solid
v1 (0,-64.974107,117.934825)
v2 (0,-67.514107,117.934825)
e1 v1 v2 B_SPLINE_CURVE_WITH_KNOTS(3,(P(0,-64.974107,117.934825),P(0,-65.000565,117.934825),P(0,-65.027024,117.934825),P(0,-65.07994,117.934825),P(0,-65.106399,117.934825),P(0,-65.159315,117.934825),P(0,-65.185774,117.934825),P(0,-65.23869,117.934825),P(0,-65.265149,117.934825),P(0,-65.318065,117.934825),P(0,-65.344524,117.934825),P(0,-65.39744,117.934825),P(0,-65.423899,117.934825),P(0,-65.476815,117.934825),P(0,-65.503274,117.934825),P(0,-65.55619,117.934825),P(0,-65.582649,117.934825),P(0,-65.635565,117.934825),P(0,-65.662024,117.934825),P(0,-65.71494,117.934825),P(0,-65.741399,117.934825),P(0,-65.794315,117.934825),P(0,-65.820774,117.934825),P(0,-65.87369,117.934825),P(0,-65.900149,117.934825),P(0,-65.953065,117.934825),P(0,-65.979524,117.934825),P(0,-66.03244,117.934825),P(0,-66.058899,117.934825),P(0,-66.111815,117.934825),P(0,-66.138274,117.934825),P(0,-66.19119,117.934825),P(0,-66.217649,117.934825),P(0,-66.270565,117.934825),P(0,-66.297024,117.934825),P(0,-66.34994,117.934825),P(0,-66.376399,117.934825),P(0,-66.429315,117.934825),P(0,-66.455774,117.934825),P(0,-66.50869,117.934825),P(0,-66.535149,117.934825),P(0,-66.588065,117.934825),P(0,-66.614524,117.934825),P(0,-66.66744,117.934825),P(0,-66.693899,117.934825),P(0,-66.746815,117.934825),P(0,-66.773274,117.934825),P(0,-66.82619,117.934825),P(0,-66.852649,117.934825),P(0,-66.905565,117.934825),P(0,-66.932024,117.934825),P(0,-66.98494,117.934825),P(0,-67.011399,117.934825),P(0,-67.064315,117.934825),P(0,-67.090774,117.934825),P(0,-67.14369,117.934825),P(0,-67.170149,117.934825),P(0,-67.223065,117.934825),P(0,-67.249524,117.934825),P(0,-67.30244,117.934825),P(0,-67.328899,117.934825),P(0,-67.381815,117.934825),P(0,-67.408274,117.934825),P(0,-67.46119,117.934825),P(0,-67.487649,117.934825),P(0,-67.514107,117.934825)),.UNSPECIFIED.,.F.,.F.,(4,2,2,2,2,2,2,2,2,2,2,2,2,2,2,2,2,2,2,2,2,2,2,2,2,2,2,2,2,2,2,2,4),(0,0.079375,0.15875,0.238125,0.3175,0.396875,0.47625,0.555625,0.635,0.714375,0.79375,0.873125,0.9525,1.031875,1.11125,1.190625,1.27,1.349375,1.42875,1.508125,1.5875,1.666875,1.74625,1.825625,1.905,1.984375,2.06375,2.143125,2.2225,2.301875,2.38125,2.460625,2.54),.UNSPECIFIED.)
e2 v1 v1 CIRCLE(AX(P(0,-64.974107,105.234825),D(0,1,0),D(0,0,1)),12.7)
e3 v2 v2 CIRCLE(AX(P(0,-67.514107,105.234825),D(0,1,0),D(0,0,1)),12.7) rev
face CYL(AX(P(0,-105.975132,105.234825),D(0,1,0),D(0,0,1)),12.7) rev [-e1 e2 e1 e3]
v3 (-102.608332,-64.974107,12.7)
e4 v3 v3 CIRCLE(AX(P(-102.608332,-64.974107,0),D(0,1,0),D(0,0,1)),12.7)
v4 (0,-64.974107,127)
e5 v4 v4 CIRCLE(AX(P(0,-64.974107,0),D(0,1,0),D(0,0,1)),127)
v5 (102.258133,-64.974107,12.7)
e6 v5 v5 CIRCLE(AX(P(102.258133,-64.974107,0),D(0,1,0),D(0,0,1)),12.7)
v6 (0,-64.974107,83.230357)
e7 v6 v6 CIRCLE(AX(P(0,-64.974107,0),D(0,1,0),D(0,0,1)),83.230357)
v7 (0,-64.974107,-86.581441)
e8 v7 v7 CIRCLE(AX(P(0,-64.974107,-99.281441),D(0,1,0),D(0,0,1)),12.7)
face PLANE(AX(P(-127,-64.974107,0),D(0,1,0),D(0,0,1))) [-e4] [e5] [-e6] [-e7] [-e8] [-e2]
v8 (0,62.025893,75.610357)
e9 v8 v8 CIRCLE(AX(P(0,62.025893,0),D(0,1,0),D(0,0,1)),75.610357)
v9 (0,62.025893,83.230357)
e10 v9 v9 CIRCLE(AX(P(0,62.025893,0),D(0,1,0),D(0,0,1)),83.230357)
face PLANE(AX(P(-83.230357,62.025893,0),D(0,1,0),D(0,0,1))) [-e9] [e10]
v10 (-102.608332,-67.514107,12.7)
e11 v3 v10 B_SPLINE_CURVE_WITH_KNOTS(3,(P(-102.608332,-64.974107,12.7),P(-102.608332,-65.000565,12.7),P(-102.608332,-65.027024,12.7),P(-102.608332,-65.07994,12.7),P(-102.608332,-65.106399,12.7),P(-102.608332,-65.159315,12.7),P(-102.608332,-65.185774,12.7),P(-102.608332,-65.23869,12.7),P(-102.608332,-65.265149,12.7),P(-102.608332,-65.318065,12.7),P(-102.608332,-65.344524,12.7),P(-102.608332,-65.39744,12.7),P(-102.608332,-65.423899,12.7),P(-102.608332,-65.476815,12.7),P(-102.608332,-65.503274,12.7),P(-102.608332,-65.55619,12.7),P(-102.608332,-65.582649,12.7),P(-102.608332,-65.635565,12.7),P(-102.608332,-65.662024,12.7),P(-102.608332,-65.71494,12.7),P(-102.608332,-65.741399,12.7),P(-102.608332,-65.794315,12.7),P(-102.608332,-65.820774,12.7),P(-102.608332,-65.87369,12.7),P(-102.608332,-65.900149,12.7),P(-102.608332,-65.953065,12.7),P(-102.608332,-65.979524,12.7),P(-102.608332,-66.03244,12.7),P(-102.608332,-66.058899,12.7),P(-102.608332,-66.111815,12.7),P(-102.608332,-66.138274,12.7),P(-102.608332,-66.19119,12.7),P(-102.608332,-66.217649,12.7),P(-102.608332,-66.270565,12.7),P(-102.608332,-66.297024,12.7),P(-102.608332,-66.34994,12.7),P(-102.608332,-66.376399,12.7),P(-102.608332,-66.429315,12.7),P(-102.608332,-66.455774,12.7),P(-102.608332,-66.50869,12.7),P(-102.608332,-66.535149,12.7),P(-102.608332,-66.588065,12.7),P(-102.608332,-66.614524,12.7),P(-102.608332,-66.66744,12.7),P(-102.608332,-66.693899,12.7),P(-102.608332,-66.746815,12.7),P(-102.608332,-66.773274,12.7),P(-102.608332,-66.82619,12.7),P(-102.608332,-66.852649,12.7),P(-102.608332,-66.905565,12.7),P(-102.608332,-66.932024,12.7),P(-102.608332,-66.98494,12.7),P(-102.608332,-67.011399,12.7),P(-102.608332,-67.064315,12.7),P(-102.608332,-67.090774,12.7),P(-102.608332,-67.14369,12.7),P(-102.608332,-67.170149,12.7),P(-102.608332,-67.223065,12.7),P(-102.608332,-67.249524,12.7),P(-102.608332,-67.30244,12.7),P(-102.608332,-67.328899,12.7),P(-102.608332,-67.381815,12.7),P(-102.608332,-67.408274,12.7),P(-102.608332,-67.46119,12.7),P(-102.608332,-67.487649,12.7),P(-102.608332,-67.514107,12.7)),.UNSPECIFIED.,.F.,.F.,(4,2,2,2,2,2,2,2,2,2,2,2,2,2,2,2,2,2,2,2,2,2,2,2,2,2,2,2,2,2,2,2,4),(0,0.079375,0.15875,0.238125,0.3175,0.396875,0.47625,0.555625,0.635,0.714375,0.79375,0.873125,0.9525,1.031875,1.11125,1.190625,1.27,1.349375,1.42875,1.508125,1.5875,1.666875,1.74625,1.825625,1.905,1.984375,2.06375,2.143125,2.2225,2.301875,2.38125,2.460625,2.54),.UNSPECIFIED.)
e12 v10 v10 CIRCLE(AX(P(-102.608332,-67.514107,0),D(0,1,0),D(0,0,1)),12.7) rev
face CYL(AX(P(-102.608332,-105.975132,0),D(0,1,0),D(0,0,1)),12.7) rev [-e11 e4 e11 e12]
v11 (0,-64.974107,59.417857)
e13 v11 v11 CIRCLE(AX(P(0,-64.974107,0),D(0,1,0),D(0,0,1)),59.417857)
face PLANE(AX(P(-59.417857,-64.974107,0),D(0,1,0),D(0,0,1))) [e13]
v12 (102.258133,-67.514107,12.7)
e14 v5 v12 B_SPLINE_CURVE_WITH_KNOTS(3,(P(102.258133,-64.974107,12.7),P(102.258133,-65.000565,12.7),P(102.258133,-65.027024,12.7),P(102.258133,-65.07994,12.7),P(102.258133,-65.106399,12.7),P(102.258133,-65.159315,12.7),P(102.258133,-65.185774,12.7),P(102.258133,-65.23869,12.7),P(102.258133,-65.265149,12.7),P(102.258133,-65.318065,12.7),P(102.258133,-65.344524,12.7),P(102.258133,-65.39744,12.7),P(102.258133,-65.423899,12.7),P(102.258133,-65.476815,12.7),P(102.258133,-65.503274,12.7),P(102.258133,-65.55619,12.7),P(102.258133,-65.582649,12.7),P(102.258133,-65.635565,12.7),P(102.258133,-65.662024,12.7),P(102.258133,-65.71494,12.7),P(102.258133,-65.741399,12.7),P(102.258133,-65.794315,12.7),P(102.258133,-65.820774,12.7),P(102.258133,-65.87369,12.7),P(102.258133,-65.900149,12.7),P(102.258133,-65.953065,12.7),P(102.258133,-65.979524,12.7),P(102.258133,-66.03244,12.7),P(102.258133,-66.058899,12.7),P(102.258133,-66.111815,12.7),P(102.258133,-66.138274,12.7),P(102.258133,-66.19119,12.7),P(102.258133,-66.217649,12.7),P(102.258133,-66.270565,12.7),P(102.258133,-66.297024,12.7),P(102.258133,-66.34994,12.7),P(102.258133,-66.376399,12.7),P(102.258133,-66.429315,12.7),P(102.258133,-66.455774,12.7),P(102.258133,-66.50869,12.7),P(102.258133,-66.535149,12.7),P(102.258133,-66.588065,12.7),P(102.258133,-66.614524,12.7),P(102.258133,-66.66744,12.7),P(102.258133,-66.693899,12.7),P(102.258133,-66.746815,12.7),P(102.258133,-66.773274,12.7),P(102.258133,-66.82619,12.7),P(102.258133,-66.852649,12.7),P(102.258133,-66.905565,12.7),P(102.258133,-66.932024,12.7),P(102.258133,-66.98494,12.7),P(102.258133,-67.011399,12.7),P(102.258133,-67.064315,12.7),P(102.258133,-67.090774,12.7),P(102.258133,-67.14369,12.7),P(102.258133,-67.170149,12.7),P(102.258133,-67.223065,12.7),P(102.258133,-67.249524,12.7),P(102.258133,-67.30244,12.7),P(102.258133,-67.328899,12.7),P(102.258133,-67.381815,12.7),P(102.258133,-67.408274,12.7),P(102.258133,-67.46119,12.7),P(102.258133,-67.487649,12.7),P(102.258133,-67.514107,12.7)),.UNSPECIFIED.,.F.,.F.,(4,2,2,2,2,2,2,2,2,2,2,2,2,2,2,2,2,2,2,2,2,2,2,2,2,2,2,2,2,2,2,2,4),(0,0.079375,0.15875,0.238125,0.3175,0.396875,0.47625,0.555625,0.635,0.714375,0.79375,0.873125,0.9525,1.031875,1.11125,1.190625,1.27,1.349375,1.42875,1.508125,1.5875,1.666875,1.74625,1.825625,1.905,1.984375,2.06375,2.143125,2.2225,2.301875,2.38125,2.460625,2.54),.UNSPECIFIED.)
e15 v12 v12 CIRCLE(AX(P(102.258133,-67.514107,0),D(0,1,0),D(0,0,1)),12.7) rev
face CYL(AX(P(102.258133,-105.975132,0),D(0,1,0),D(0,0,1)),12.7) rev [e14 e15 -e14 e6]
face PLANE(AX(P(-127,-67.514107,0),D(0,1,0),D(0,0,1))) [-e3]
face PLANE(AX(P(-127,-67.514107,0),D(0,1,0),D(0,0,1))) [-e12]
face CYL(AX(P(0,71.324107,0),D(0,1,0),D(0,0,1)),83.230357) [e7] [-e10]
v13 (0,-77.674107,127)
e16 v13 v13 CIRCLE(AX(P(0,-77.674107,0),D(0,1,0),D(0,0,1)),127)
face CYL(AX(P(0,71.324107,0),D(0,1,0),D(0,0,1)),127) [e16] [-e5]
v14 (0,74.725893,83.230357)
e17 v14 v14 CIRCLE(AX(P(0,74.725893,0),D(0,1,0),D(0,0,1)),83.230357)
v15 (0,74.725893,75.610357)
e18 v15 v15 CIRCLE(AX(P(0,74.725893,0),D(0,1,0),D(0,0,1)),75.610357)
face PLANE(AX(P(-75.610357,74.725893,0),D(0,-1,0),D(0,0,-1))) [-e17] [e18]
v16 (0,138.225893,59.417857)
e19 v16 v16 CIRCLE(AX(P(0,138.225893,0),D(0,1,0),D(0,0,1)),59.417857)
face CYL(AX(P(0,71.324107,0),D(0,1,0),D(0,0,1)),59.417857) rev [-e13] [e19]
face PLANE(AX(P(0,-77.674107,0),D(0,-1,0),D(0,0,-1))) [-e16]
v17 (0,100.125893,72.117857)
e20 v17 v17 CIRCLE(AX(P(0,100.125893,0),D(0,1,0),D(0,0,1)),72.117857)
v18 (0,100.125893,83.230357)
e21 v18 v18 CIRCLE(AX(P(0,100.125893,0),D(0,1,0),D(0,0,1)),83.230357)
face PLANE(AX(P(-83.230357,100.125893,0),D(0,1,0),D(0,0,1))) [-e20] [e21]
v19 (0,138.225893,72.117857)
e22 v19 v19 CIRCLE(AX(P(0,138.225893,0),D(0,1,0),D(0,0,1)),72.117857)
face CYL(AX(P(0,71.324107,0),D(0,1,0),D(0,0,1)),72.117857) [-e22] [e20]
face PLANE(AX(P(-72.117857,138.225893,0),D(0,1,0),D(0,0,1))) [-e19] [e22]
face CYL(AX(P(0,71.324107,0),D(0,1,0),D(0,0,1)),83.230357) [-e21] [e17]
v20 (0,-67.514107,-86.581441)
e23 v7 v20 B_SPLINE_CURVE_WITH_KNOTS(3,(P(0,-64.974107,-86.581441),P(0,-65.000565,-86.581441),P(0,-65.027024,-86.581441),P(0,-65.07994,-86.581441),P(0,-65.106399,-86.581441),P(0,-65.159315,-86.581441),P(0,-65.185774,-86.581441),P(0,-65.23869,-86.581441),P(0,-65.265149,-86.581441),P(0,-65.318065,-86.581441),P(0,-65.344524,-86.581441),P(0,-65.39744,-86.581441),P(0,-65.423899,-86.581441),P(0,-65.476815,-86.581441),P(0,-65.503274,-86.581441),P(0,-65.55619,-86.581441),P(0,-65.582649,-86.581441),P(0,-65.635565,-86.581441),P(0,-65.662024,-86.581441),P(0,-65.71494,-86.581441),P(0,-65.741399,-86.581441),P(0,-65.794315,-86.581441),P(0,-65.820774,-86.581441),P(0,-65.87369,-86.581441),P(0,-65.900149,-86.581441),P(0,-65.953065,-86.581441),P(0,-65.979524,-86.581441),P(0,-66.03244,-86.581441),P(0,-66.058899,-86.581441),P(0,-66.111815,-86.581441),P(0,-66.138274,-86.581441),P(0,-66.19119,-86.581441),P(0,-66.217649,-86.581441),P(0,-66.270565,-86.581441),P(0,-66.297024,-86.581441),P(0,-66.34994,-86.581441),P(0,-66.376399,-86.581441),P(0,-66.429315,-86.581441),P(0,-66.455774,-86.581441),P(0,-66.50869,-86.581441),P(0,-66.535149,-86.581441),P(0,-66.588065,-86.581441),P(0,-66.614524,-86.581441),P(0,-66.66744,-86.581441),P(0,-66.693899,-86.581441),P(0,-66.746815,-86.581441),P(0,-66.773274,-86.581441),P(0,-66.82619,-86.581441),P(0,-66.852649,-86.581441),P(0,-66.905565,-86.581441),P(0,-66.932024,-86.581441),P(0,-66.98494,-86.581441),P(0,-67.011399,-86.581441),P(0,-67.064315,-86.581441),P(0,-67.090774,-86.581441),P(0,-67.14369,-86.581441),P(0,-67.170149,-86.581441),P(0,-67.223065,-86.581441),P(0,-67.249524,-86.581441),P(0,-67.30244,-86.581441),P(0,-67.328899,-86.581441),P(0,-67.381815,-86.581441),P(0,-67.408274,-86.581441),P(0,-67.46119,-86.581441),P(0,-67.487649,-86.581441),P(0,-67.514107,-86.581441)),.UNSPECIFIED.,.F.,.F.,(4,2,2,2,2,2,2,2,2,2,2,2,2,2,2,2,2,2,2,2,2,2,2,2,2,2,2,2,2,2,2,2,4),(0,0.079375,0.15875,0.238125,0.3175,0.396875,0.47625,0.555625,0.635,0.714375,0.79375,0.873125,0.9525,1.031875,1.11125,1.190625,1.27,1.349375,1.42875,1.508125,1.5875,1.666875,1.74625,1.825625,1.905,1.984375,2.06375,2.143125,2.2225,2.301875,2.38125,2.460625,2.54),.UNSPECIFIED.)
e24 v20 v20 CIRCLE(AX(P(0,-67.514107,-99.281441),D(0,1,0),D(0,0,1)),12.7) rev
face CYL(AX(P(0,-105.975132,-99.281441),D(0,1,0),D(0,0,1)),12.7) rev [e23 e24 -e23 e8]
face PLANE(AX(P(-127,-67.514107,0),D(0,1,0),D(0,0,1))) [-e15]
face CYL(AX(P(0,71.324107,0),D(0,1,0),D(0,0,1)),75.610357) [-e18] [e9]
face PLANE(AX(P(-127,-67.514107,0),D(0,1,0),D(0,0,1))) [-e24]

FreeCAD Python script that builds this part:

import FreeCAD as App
import Part
import Sketcher

V = App.Vector
Q = App.Units.Quantity

doc = App.newDocument("Part")
body = doc.addObject("PartDesign::Body", "Body")

sketch1 = doc.addObject("Sketcher::SketchObject", "Sketch")
body.addObject(sketch1)
sketch1.AttachmentSupport = (doc.XY_Plane, [""])
sketch1.MapMode = "FlatFace"
sketch1.addGeometry(Part.LineSegment(V(-127, -78, 0), V(0, -78, 0)), False)
sketch1.addGeometry(Part.LineSegment(V(0, -78, 0), V(0, -65, 0)), False)
sketch1.addGeometry(Part.LineSegment(V(0, -65, 0), V(-59, -65, 0)), False)
sketch1.addGeometry(Part.LineSegment(V(-59, -65, 0), V(-59, 138, 0)), False)
sketch1.addGeometry(Part.LineSegment(V(-59, 138, 0), V(-72, 138, 0)), False)
sketch1.addGeometry(Part.LineSegment(V(-72, 138, 0), V(-72, 100, 0)), False)
sketch1.addGeometry(Part.LineSegment(V(-72, 100, 0), V(-83, 100, 0)), False)
sketch1.addGeometry(Part.LineSegment(V(-83, 100, 0), V(-83, 75, 0)), False)
sketch1.addGeometry(Part.LineSegment(V(-83, 75, 0), V(-76, 75, 0)), False)
sketch1.addGeometry(Part.LineSegment(V(-76, 75, 0), V(-76, 62, 0)), False)
sketch1.addGeometry(Part.LineSegment(V(-76, 62, 0), V(-83, 62, 0)), False)
sketch1.addGeometry(Part.LineSegment(V(-83, 62, 0), V(-83, -65, 0)), False)
sketch1.addGeometry(Part.LineSegment(V(-83, -65, 0), V(-127, -65, 0)), False)
sketch1.addGeometry(Part.LineSegment(V(-127, -65, 0), V(-127, -78, 0)), False)
sketch1.addConstraint(Sketcher.Constraint("Coincident", 0, 2, 1, 1))
sketch1.addConstraint(Sketcher.Constraint("Coincident", 1, 2, 2, 1))
sketch1.addConstraint(Sketcher.Constraint("Coincident", 2, 2, 3, 1))
sketch1.addConstraint(Sketcher.Constraint("Coincident", 3, 2, 4, 1))
sketch1.addConstraint(Sketcher.Constraint("Coincident", 4, 2, 5, 1))
sketch1.addConstraint(Sketcher.Constraint("Coincident", 5, 2, 6, 1))
sketch1.addConstraint(Sketcher.Constraint("Coincident", 6, 2, 7, 1))
sketch1.addConstraint(Sketcher.Constraint("Coincident", 7, 2, 8, 1))
sketch1.addConstraint(Sketcher.Constraint("Coincident", 8, 2, 9, 1))
sketch1.addConstraint(Sketcher.Constraint("Coincident", 9, 2, 10, 1))
sketch1.addConstraint(Sketcher.Constraint("Coincident", 10, 2, 11, 1))
sketch1.addConstraint(Sketcher.Constraint("Coincident", 11, 2, 12, 1))
sketch1.addConstraint(Sketcher.Constraint("Coincident", 12, 2, 13, 1))
sketch1.addConstraint(Sketcher.Constraint("Coincident", 13, 2, 0, 1))
sketch1.addConstraint(Sketcher.Constraint("Horizontal", 0))
sketch1.addConstraint(Sketcher.Constraint("Vertical", 1))
sketch1.addConstraint(Sketcher.Constraint("Horizontal", 2))
sketch1.addConstraint(Sketcher.Constraint("Vertical", 3))
sketch1.addConstraint(Sketcher.Constraint("Horizontal", 4))
sketch1.addConstraint(Sketcher.Constraint("Vertical", 5))
sketch1.addConstraint(Sketcher.Constraint("Horizontal", 6))
sketch1.addConstraint(Sketcher.Constraint("Vertical", 7))
sketch1.addConstraint(Sketcher.Constraint("Horizontal", 8))
sketch1.addConstraint(Sketcher.Constraint("Vertical", 9))
sketch1.addConstraint(Sketcher.Constraint("Horizontal", 10))
sketch1.addConstraint(Sketcher.Constraint("Vertical", 11))
sketch1.addConstraint(Sketcher.Constraint("Horizontal", 12))
sketch1.addConstraint(Sketcher.Constraint("Vertical", 13))
sketch1.addConstraint(Sketcher.Constraint("PointOnObject", 0, 2, -2))
sketch1.addConstraint(Sketcher.Constraint("Horizontal", 2, 2, 11, 2))
sketch1.addConstraint(Sketcher.Constraint("Vertical", 7, 2, 10, 2))
sketch1.addConstraint(Sketcher.Constraint("Equal", 4, 1))
sketch1.addConstraint(Sketcher.Constraint("Equal", 1, 9))
sketch1.addConstraint(Sketcher.Constraint("Equal", 0, 11))
sketch1.addConstraint(Sketcher.Constraint("DistanceX", 0, 1, 0, 2, Q("5 in")))
sketch1.addConstraint(Sketcher.Constraint("DistanceY", 3, 1, 3, 2, Q("8 in")))
sketch1.addConstraint(Sketcher.Constraint("DistanceY", 7, 2, 7, 1, Q("1 in")))
sketch1.addConstraint(Sketcher.Constraint("DistanceX", 4, 2, 4, 1, Q("0.5 in")))
sketch1.addConstraint(Sketcher.Constraint("DistanceX", 8, 1, 8, 2, Q("0.3 in")))
sketch1.addConstraint(Sketcher.Constraint("DistanceX", 6, 2, 6, 1, Q("0.4375 in")))
sketch1.addConstraint(Sketcher.Constraint("DistanceX", 2, 2, 2, 1, 59.417857))
sketch1.addConstraint(Sketcher.Constraint("DistanceY", 0, 2, -1, 1, 77.674107))
revolution = doc.addObject("PartDesign::Revolution", "Revolution")
body.addObject(revolution)
revolution.Profile = sketch1
revolution.ReferenceAxis = (sketch1, ["V_Axis"])
revolution.Angle = 360

sketch2 = doc.addObject("Sketcher::SketchObject", "Sketch001")
body.addObject(sketch2)
sketch2.AttachmentSupport = (doc.XZ_Plane, [""])
sketch2.MapMode = "FlatFace"
sketch2.addGeometry(Part.Circle(V(-103, 0, 0), V(0, 0, 1), 13), False)
sketch2.addGeometry(Part.Circle(V(0, 105, 0), V(0, 0, 1), 13), False)
sketch2.addGeometry(Part.Circle(V(102, 0, 0), V(0, 0, 1), 13), False)
sketch2.addGeometry(Part.Circle(V(0, -99, 0), V(0, 0, 1), 13), False)
sketch2.addConstraint(Sketcher.Constraint("Equal", 0, 1))
sketch2.addConstraint(Sketcher.Constraint("Equal", 1, 2))
sketch2.addConstraint(Sketcher.Constraint("Equal", 2, 3))
sketch2.addConstraint(Sketcher.Constraint("PointOnObject", 0, 3, -1))
sketch2.addConstraint(Sketcher.Constraint("PointOnObject", 1, 3, -2))
sketch2.addConstraint(Sketcher.Constraint("PointOnObject", 2, 3, -1))
sketch2.addConstraint(Sketcher.Constraint("PointOnObject", 3, 3, -2))
sketch2.addConstraint(Sketcher.Constraint("Diameter", 0, Q("1 in")))
sketch2.addConstraint(Sketcher.Constraint("DistanceX", 0, 3, -1, 1, 102.608332))
sketch2.addConstraint(Sketcher.Constraint("DistanceY", 3, 3, -1, 1, 99.281441))
sketch2.addConstraint(Sketcher.Constraint("DistanceY", -1, 1, 1, 3, 105.234825))
sketch2.addConstraint(Sketcher.Constraint("DistanceX", -1, 1, 2, 3, 102.258133))
pocket1 = doc.addObject("PartDesign::Pocket", "Pocket")
body.addObject(pocket1)
pocket1.Profile = sketch2
pocket1.Length = 67.514107
pocket1.Reversed = True

doc.recompute()
